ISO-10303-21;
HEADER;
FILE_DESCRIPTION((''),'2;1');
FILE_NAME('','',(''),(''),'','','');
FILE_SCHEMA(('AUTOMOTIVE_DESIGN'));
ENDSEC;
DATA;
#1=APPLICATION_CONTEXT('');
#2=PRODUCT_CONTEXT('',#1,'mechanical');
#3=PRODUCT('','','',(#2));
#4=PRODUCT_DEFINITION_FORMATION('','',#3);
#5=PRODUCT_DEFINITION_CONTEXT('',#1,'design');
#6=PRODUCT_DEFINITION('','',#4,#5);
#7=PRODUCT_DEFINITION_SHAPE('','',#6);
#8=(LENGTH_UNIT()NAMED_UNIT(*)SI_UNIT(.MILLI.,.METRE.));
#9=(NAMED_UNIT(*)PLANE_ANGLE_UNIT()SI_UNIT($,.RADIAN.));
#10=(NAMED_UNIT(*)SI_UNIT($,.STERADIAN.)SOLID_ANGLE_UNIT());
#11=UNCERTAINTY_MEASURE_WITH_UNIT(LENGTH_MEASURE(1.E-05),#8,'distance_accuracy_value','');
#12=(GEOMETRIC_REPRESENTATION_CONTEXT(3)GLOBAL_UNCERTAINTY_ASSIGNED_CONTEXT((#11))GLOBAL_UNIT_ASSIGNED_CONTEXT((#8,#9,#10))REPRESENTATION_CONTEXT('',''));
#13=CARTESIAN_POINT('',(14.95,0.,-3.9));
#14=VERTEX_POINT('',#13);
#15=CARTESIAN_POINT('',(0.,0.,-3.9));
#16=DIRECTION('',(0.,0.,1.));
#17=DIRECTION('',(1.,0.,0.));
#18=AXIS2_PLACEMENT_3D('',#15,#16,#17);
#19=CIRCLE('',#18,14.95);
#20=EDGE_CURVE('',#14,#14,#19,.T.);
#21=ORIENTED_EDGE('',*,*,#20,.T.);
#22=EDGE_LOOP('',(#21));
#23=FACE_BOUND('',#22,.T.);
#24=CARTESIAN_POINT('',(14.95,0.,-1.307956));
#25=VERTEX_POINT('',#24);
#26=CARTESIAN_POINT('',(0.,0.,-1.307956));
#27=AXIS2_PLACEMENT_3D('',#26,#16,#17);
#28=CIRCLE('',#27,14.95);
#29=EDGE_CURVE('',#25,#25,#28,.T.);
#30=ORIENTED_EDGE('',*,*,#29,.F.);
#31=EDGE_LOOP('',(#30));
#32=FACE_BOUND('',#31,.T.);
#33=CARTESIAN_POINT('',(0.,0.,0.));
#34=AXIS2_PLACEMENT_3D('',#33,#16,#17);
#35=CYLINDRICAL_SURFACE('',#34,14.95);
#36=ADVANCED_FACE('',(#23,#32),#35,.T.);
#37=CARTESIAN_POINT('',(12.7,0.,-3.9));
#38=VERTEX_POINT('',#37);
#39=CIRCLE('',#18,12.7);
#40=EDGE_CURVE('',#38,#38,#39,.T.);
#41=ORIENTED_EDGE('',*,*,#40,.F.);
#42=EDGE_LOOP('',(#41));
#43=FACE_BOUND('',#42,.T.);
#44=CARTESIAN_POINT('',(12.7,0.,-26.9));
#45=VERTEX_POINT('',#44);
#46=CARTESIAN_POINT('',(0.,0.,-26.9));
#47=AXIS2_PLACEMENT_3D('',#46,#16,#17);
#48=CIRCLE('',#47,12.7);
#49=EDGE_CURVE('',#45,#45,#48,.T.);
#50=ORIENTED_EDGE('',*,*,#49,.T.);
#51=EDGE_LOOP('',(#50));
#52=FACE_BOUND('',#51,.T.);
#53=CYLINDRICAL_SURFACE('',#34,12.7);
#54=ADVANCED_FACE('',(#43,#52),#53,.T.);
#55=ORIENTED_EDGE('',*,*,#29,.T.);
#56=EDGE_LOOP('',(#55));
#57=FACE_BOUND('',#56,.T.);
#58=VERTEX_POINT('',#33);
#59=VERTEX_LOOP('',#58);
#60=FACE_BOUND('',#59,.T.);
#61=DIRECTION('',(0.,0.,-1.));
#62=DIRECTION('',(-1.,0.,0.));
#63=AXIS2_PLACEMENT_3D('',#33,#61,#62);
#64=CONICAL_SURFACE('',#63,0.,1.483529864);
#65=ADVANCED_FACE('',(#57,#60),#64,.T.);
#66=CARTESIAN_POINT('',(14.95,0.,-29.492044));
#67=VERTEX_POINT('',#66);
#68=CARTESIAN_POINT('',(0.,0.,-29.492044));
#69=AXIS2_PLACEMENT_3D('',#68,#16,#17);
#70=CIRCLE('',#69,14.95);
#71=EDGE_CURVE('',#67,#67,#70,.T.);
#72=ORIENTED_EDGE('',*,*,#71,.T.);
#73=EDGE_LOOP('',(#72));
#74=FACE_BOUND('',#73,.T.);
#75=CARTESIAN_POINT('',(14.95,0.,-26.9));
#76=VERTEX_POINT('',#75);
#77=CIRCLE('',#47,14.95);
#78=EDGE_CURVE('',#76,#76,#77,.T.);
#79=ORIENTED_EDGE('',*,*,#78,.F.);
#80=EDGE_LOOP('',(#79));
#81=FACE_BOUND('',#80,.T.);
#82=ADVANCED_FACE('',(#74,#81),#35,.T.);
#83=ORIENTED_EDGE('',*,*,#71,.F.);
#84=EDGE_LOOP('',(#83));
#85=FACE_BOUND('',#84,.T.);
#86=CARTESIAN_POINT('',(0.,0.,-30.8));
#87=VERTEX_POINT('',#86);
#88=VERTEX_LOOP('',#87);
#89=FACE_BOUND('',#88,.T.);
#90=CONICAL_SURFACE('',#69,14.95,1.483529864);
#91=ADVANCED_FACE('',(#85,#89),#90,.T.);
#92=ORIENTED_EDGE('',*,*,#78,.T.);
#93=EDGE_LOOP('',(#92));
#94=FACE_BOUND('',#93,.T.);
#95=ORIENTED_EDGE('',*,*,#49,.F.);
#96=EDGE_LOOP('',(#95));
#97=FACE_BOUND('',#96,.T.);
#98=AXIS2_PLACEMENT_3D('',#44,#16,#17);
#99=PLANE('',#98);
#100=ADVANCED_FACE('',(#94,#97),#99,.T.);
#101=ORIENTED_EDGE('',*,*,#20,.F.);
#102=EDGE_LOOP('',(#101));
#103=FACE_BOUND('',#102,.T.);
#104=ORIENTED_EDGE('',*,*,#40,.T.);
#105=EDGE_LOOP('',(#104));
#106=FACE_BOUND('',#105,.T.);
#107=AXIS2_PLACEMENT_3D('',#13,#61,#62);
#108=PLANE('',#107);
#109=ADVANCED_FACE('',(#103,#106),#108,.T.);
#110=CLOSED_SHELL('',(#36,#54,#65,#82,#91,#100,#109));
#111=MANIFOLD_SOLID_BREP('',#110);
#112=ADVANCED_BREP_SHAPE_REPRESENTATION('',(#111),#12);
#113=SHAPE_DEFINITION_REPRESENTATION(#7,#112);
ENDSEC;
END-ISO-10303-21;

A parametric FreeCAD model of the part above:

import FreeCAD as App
import Part
import Sketcher
from FreeCAD import Vector
Q = App.Units.Quantity

doc = App.newDocument("Part")
body = doc.addObject("PartDesign::Body", "Body")

# Sketch on XZ plane
sketch1 = body.newObject("Sketcher::SketchObject", "Sketch")
sketch1.AttachmentSupport = (doc.getObject("XZ_Plane"), [""])
sketch1.MapMode = "FlatFace"
sketch1.addGeometry([
    Part.LineSegment(Vector(0, -30.8, 0), Vector(0, 0, 0)),  # 0
    Part.LineSegment(Vector(0, 0, 0), Vector(14.9, -1.3, 0)),  # 1
    Part.LineSegment(Vector(14.9, -1.3, 0), Vector(14.9, -3.9, 0)),  # 2
    Part.LineSegment(Vector(14.9, -3.9, 0), Vector(12.7, -3.9, 0)),  # 3
    Part.LineSegment(Vector(12.7, -3.9, 0), Vector(12.7, -26.9, 0)),  # 4
    Part.LineSegment(Vector(12.7, -26.9, 0), Vector(14.9, -26.9, 0)),  # 5
    Part.LineSegment(Vector(14.9, -26.9, 0), Vector(14.9, -29.5, 0)),  # 6
    Part.LineSegment(Vector(14.9, -29.5, 0), Vector(0, -30.8, 0)),  # 7
], False)
sketch1.addConstraint([
    Sketcher.Constraint("Coincident", 0, 2, 1, 1),
    Sketcher.Constraint("Coincident", 1, 2, 2, 1),
    Sketcher.Constraint("Coincident", 2, 2, 3, 1),
    Sketcher.Constraint("Coincident", 3, 2, 4, 1),
    Sketcher.Constraint("Coincident", 4, 2, 5, 1),
    Sketcher.Constraint("Coincident", 5, 2, 6, 1),
    Sketcher.Constraint("Coincident", 6, 2, 7, 1),
    Sketcher.Constraint("Coincident", 7, 2, 0, 1),
    Sketcher.Constraint("Vertical", 0),
    Sketcher.Constraint("Vertical", 2),
    Sketcher.Constraint("Horizontal", 3),
    Sketcher.Constraint("Vertical", 4),
    Sketcher.Constraint("Horizontal", 5),
    Sketcher.Constraint("Vertical", 6),
    Sketcher.Constraint("Coincident", 0, 2, -1, 1),
    Sketcher.Constraint("Vertical", 2, 2, 5, 2),
    Sketcher.Constraint("Equal", 2, 6),
    Sketcher.Constraint("Equal", 1, 7),
    Sketcher.Constraint("DistanceY", 4, 2, 4, 1, Q("23 mm")),
    Sketcher.Constraint("Angle", 1, Q("-5 deg")),
    Sketcher.Constraint("DistanceY", 0, 1, 0, 2, Q("30.8 mm")),
    Sketcher.Constraint("DistanceX", 3, 2, 3, 1, Q("2.25 mm")),
    Sketcher.Constraint("DistanceX", -1, 1, 3, 2, Q("12.7 mm")),
])
revolution = body.newObject("PartDesign::Revolution", "Revolution")
revolution.Profile = sketch1
revolution.ReferenceAxis = (sketch1, ["V_Axis"])
revolution.Angle = 360

doc.recompute()
